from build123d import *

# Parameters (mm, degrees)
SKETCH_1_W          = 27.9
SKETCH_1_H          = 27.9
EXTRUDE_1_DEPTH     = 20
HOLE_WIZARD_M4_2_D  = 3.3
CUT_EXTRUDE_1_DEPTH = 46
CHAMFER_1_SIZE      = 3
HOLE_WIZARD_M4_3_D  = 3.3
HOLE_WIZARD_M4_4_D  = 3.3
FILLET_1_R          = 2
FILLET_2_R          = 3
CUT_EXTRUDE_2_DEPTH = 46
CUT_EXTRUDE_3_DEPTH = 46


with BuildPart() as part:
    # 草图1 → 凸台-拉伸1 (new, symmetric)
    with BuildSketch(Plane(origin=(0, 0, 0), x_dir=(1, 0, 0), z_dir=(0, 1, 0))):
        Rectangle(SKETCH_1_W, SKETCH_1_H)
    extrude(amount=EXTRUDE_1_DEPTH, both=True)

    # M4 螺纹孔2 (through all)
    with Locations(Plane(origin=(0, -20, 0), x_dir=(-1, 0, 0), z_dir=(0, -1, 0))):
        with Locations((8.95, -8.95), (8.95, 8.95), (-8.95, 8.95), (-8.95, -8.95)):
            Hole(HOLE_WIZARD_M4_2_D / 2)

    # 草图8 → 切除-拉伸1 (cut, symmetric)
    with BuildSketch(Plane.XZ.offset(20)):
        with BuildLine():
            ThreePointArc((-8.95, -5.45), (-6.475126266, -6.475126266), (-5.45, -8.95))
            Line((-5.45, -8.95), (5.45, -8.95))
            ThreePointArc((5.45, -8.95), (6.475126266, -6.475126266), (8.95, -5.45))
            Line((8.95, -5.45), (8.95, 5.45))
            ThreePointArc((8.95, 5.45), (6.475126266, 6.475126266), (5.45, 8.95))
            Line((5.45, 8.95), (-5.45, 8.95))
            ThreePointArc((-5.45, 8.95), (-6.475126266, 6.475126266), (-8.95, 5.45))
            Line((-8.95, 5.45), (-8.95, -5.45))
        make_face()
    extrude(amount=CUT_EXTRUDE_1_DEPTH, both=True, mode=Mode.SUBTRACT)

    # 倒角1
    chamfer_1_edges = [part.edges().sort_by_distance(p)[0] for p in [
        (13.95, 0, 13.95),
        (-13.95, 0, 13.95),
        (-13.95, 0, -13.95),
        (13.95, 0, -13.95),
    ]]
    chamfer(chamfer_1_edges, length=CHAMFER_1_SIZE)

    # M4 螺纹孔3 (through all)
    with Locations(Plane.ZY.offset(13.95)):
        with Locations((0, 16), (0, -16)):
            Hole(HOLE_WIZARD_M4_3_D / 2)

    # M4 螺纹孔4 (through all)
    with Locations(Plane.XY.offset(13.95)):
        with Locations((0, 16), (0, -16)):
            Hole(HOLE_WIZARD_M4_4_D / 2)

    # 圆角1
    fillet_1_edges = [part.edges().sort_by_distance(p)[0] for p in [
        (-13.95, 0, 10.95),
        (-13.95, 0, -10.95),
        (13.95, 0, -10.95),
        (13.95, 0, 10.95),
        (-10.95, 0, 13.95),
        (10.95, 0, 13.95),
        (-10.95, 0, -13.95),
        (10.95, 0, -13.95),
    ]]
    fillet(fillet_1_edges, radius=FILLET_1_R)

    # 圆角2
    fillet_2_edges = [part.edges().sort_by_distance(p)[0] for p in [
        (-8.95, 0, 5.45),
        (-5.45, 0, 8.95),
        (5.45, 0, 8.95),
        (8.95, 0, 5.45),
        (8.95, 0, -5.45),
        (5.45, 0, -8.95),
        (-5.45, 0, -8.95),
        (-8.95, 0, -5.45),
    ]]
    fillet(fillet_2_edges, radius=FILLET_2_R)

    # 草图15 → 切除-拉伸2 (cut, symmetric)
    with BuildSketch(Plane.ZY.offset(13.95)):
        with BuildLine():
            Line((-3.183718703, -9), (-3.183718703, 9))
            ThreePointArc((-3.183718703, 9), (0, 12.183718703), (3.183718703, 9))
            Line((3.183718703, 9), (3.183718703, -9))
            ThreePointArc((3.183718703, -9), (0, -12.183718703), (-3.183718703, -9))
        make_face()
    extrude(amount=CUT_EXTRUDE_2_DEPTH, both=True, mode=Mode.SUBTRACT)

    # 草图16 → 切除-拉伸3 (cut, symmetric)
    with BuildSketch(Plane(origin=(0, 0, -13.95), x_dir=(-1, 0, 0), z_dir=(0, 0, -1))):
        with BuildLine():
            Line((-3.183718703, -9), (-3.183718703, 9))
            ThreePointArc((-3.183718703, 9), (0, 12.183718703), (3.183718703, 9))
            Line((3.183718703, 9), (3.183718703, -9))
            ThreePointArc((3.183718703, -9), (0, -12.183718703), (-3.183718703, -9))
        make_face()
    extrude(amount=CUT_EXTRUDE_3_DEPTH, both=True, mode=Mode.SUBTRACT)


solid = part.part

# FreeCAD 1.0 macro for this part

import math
import FreeCAD as App
import Part
import Sketcher
from FreeCAD import Vector
Q = App.Units.Quantity


def edges_at(feature, points):
    """Names of the edges that pass closest to the given points."""
    edges = feature.Shape.Edges
    near = lambda p: min(range(len(edges)), key=lambda i: edges[i].distToShape(Part.Vertex(*p))[0])
    return sorted({f"Edge{near(p) + 1}" for p in points})

doc = App.newDocument("Part")
params = doc.addObject("Spreadsheet::Sheet", "Params")
for row, (alias, value) in enumerate([
    ("sketch1_width", "27.9 mm"),
    ("pad1_length", "40 mm"),
    ("sketch2_diameter", "3.3 mm"),
    ("hole_diameter", "3.3 mm"),
    ("sketch3_radius", "3.5 mm"),
    ("sketch3_width", "10.9 mm"),
    ("pocket1_length", "92 mm"),
    ("chamfer_size", "3 mm"),
    ("sketch4_diameter", "3.3 mm"),
    ("hole2_diameter", "3.3 mm"),
    ("sketch5_diameter", "3.3 mm"),
    ("hole3_diameter", "3.3 mm"),
    ("fillet_radius", "2 mm"),
    ("fillet2_radius", "3 mm"),
    ("sketch6_width", "18 mm"),
    ("pocket2_length", "92 mm"),
    ("sketch7_height", "18 mm"),
    ("pocket3_length", "92 mm"),
], start=1):
    params.set(f"A{row}", alias)
    params.set(f"B{row}", "=" + value)
    params.setAlias(f"B{row}", alias)

body = doc.addObject("PartDesign::Body", "Body")

# Sketch on XZ plane
sketch1 = doc.addObject("Sketcher::SketchObject", "Sketch")
body.addObject(sketch1)
sketch1.AttachmentSupport = (doc.XZ_Plane, [""])
sketch1.MapMode = "FlatFace"
sketch1.addGeometry([
    Part.LineSegment(Vector(-14, -14, 0), Vector(-14, 14, 0)),
    Part.LineSegment(Vector(-14, 14, 0), Vector(14, 14, 0)),
    Part.LineSegment(Vector(14, 14, 0), Vector(14, -14, 0)),
    Part.LineSegment(Vector(14, -14, 0), Vector(-14, -14, 0)),
], False)
sketch1.addConstraint([
    Sketcher.Constraint("Coincident", 0, 2, 1, 1),
    Sketcher.Constraint("Coincident", 1, 2, 2, 1),
    Sketcher.Constraint("Coincident", 2, 2, 3, 1),
    Sketcher.Constraint("Coincident", 3, 2, 0, 1),
    Sketcher.Constraint("Vertical", 0),
    Sketcher.Constraint("Horizontal", 1),
    Sketcher.Constraint("Vertical", 2),
    Sketcher.Constraint("Horizontal", 3),
    Sketcher.Constraint("Symmetric", 0, 2, 2, 2, -1, 1),
    Sketcher.Constraint("Equal", 3, 0),
    Sketcher.Constraint("DistanceX", 1, 1, 1, 2, Q("27.9 mm")),
])
sketch1.setExpression("Constraints[10]", "Params.sketch1_width")
pad1 = doc.addObject("PartDesign::Pad", "Pad")
body.addObject(pad1)
pad1.Profile = sketch1
pad1.setExpression("Length", "Params.pad1_length")
pad1.Midplane = True

# Sketch on XZ plane
sketch2 = doc.addObject("Sketcher::SketchObject", "Sketch001")
body.addObject(sketch2)
sketch2.AttachmentSupport = (doc.XZ_Plane, [""])
sketch2.MapMode = "FlatFace"
sketch2.AttachmentOffset = App.Placement(Vector(0, 0, 20), App.Rotation())
sketch2.addGeometry([
    Part.Circle(Vector(-8.9, 8.9, 0), Vector(0, 0, 1), 1.6),
    Part.Circle(Vector(-8.9, -8.9, 0), Vector(0, 0, 1), 1.6),
    Part.Circle(Vector(8.9, -8.9, 0), Vector(0, 0, 1), 1.6),
    Part.Circle(Vector(8.9, 8.9, 0), Vector(0, 0, 1), 1.6),
], False)
sketch2.addConstraint([
    Sketcher.Constraint("Equal", 0, 1),
    Sketcher.Constraint("Equal", 1, 2),
    Sketcher.Constraint("Equal", 2, 3),
    Sketcher.Constraint("Symmetric", 0, 3, 2, 3, -1, 1),
    Sketcher.Constraint("Symmetric", 1, 3, 3, 3, -1, 1),
    Sketcher.Constraint("Symmetric", 1, 3, 2, 3, -2),
    Sketcher.Constraint("Diameter", 0, Q("3.3 mm")),
    Sketcher.Constraint("DistanceY", 1, 3, 0, 3, Q("17.9 mm")),
    Sketcher.Constraint("DistanceX", 1, 3, 2, 3, Q("17.9 mm")),
])
sketch2.setExpression("Constraints[6]", "Params.sketch2_diameter")
doc.recompute()
hole = doc.addObject("PartDesign::Hole", "Hole")
body.addObject(hole)
hole.Profile = sketch2
hole.ThreadType = "None"
hole.setExpression("Diameter", "Params.hole_diameter")
hole.DepthType = "ThroughAll"

# Sketch on XZ plane
sketch3 = doc.addObject("Sketcher::SketchObject", "Sketch002")
body.addObject(sketch3)
sketch3.AttachmentSupport = (doc.XZ_Plane, [""])
sketch3.MapMode = "FlatFace"
sketch3.AttachmentOffset = App.Placement(Vector(0, 0, 20), App.Rotation())
sketch3.addGeometry([
    Part.ArcOfCircle(Part.Circle(Vector(-9, -9, 0), Vector(0, 0, 1), 3.5), math.radians(0), math.radians(90)),  # 0
    Part.LineSegment(Vector(-5.5, -8.9, 0), Vector(5.5, -8.9, 0)),  # 1
    Part.ArcOfCircle(Part.Circle(Vector(9, -9, 0), Vector(0, 0, 1), 3.5), math.radians(90), math.radians(180)),  # 2
    Part.LineSegment(Vector(8.9, -5.5, 0), Vector(8.9, 5.5, 0)),  # 3
    Part.ArcOfCircle(Part.Circle(Vector(9, 9, 0), Vector(0, 0, 1), 3.5), math.radians(-180), math.radians(-90)),  # 4
    Part.LineSegment(Vector(5.5, 8.9, 0), Vector(-5.5, 8.9, 0)),  # 5
    Part.ArcOfCircle(Part.Circle(Vector(-9, 9, 0), Vector(0, 0, 1), 3.5), math.radians(-90), math.radians(0)),  # 6
    Part.LineSegment(Vector(-8.9, 5.5, 0), Vector(-8.9, -5.5, 0)),  # 7
], False)
sketch3.addConstraint([
    Sketcher.Constraint("Coincident", 0, 1, 1, 1),
    Sketcher.Constraint("Coincident", 1, 2, 2, 2),
    Sketcher.Constraint("Coincident", 2, 1, 3, 1),
    Sketcher.Constraint("Coincident", 3, 2, 4, 2),
    Sketcher.Constraint("Coincident", 4, 1, 5, 1),
    Sketcher.Constraint("Coincident", 5, 2, 6, 2),
    Sketcher.Constraint("Coincident", 6, 1, 7, 1),
    Sketcher.Constraint("Coincident", 7, 2, 0, 2),
    Sketcher.Constraint("Horizontal", 1),
    Sketcher.Constraint("Vertical", 3),
    Sketcher.Constraint("Horizontal", 5),
    Sketcher.Constraint("Vertical", 7),
    Sketcher.Constraint("Equal", 0, 2),
    Sketcher.Constraint("Equal", 2, 4),
    Sketcher.Constraint("Equal", 4, 6),
    Sketcher.Constraint("Symmetric", 0, 3, 4, 3, -1, 1),
    Sketcher.Constraint("Symmetric", 2, 3, 6, 3, -1, 1),
    Sketcher.Constraint("Symmetric", 0, 3, 2, 3, -2),
    Sketcher.Constraint("Horizontal", 2, 3, 0, 1),
    Sketcher.Constraint("Horizontal", 6, 3, 4, 1),
    Sketcher.Constraint("Vertical", 4, 3, 2, 1),
    Sketcher.Constraint("Vertical", 0, 3, 6, 1),
    Sketcher.Constraint("Equal", 5, 3),
    Sketcher.Constraint("Radius", 0, Q("3.5 mm")),
    Sketcher.Constraint("DistanceX", 1, 1, 1, 2, Q("10.9 mm")),
])
sketch3.setExpression("Constraints[23]", "Params.sketch3_radius")
sketch3.setExpression("Constraints[24]", "Params.sketch3_width")
pocket1 = doc.addObject("PartDesign::Pocket", "Pocket")
body.addObject(pocket1)
pocket1.Profile = sketch3
pocket1.setExpression("Length", "Params.pocket1_length")
pocket1.Midplane = True
doc.recompute()

chamfer = doc.addObject("PartDesign::Chamfer", "Chamfer")
body.addObject(chamfer)
chamfer.Base = (pocket1, edges_at(pocket1, [
    (13.95, 0, 13.95),
    (-13.95, 0, 13.95),
    (-13.95, 0, -13.95),
    (13.95, 0, -13.95),
]))
chamfer.setExpression("Size", "Params.chamfer_size")

# Sketch on YZ plane
sketch4 = doc.addObject("Sketcher::SketchObject", "Sketch003")
body.addObject(sketch4)
sketch4.AttachmentSupport = (doc.YZ_Plane, [""])
sketch4.MapMode = "FlatFace"
sketch4.AttachmentOffset = App.Placement(Vector(0, 0, -13.95), App.Rotation())
sketch4.addGeometry([
    Part.Circle(Vector(16, 0, 0), Vector(0, 0, 1), 1.6),
    Part.Circle(Vector(-16, 0, 0), Vector(0, 0, 1), 1.6),
], False)
sketch4.addConstraint([
    Sketcher.Constraint("Equal", 0, 1),
    Sketcher.Constraint("Symmetric", 0, 3, 1, 3, -1, 1),
    Sketcher.Constraint("PointOnObject", 0, 3, -1),
    Sketcher.Constraint("Diameter", 0, Q("3.3 mm")),
    Sketcher.Constraint("DistanceX", -1, 1, 0, 3, Q("16 mm")),
])
sketch4.setExpression("Constraints[3]", "Params.sketch4_diameter")
doc.recompute()
hole2 = doc.addObject("PartDesign::Hole", "Hole001")
body.addObject(hole2)
hole2.Profile = sketch4
hole2.ThreadType = "None"
hole2.setExpression("Diameter", "Params.hole2_diameter")
hole2.DepthType = "ThroughAll"
hole2.Reversed = True

# Sketch on XY plane
sketch5 = doc.addObject("Sketcher::SketchObject", "Sketch004")
body.addObject(sketch5)
sketch5.AttachmentSupport = (doc.XY_Plane, [""])
sketch5.MapMode = "FlatFace"
sketch5.AttachmentOffset = App.Placement(Vector(0, 0, 13.95), App.Rotation())
sketch5.addGeometry([
    Part.Circle(Vector(0, 16, 0), Vector(0, 0, 1), 1.6),
    Part.Circle(Vector(0, -16, 0), Vector(0, 0, 1), 1.6),
], False)
sketch5.addConstraint([
    Sketcher.Constraint("Equal", 0, 1),
    Sketcher.Constraint("Symmetric", 0, 3, 1, 3, -1, 1),
    Sketcher.Constraint("PointOnObject", 0, 3, -2),
    Sketcher.Constraint("Diameter", 0, Q("3.3 mm")),
    Sketcher.Constraint("DistanceY", -1, 1, 0, 3, Q("16 mm")),
])
sketch5.setExpression("Constraints[3]", "Params.sketch5_diameter")
doc.recompute()
hole3 = doc.addObject("PartDesign::Hole", "Hole002")
body.addObject(hole3)
hole3.Profile = sketch5
hole3.ThreadType = "None"
hole3.setExpression("Diameter", "Params.hole3_diameter")
hole3.DepthType = "ThroughAll"
doc.recompute()

fillet = doc.addObject("PartDesign::Fillet", "Fillet")
body.addObject(fillet)
fillet.Base = (hole3, edges_at(hole3, [
    (-13.95, 0, 10.95),
    (-13.95, 0, -10.95),
    (13.95, 0, -10.95),
    (13.95, 0, 10.95),
    (-10.95, 0, 13.95),
    (10.95, 0, 13.95),
    (-10.95, 0, -13.95),
    (10.95, 0, -13.95),
]))
fillet.setExpression("Radius", "Params.fillet_radius")
doc.recompute()

fillet2 = doc.addObject("PartDesign::Fillet", "Fillet001")
body.addObject(fillet2)
fillet2.Base = (fillet, edges_at(fillet, [
    (-8.95, 0, 5.45),
    (-5.45, 0, 8.95),
    (5.45, 0, 8.95),
    (8.95, 0, 5.45),
    (8.95, 0, -5.45),
    (5.45, 0, -8.95),
    (-5.45, 0, -8.95),
    (-8.95, 0, -5.45),
]))
fillet2.setExpression("Radius", "Params.fillet2_radius")

# Sketch on YZ plane
sketch6 = doc.addObject("Sketcher::SketchObject", "Sketch005")
body.addObject(sketch6)
sketch6.AttachmentSupport = (doc.YZ_Plane, [""])
sketch6.MapMode = "FlatFace"
sketch6.AttachmentOffset = App.Placement(Vector(0, 0, -13.95), App.Rotation())
sketch6.addGeometry([
    Part.LineSegment(Vector(9, -3.2, 0), Vector(-9, -3.2, 0)),
    Part.ArcOfCircle(Part.Circle(Vector(-9, 0, 0), Vector(0, 0, 1), 3.2), math.radians(90), math.radians(270)),
    Part.LineSegment(Vector(-9, 3.2, 0), Vector(9, 3.2, 0)),
    Part.ArcOfCircle(Part.Circle(Vector(9, 0, 0), Vector(0, 0, 1), 3.2), math.radians(-90), math.radians(90)),
], False)
sketch6.addConstraint([
    Sketcher.Constraint("Tangent", 0, 2, 1, 2),
    Sketcher.Constraint("Tangent", 1, 1, 2, 1),
    Sketcher.Constraint("Tangent", 2, 2, 3, 2),
    Sketcher.Constraint("Tangent", 3, 1, 0, 1),
    Sketcher.Constraint("Horizontal", 0),
    Sketcher.Constraint("Horizontal", 2),
    Sketcher.Constraint("Symmetric", 1, 3, 3, 3, -1, 1),
    Sketcher.Constraint("DistanceX", 0, 2, 0, 1, Q("18 mm")),
    Sketcher.Constraint("Radius", 1, Q("3.183719 mm")),
])
sketch6.setExpression("Constraints[7]", "Params.sketch6_width")
pocket2 = doc.addObject("PartDesign::Pocket", "Pocket001")
body.addObject(pocket2)
pocket2.Profile = sketch6
pocket2.setExpression("Length", "Params.pocket2_length")
pocket2.Midplane = True

# Sketch on XY plane
sketch7 = doc.addObject("Sketcher::SketchObject", "Sketch006")
body.addObject(sketch7)
sketch7.AttachmentSupport = (doc.XY_Plane, [""])
sketch7.MapMode = "FlatFace"
sketch7.AttachmentOffset = App.Placement(Vector(0, 0, -13.95), App.Rotation())
sketch7.addGeometry([
    Part.LineSegment(Vector(3.2, 9, 0), Vector(3.2, -9, 0)),
    Part.ArcOfCircle(Part.Circle(Vector(0, -9, 0), Vector(0, 0, 1), 3.2), math.radians(180), math.radians(360)),
    Part.LineSegment(Vector(-3.2, -9, 0), Vector(-3.2, 9, 0)),
    Part.ArcOfCircle(Part.Circle(Vector(0, 9, 0), Vector(0, 0, 1), 3.2), math.radians(0), math.radians(180)),
], False)
sketch7.addConstraint([
    Sketcher.Constraint("Tangent", 0, 2, 1, 2),
    Sketcher.Constraint("Tangent", 1, 1, 2, 1),
    Sketcher.Constraint("Tangent", 2, 2, 3, 2),
    Sketcher.Constraint("Tangent", 3, 1, 0, 1),
    Sketcher.Constraint("Vertical", 0),
    Sketcher.Constraint("Vertical", 2),
    Sketcher.Constraint("Symmetric", 1, 3, 3, 3, -1, 1),
    Sketcher.Constraint("DistanceY", 0, 2, 0, 1, Q("18 mm")),
    Sketcher.Constraint("Radius", 1, Q("3.183719 mm")),
])
sketch7.setExpression("Constraints[7]", "Params.sketch7_height")
pocket3 = doc.addObject("PartDesign::Pocket", "Pocket002")
body.addObject(pocket3)
pocket3.Profile = sketch7
pocket3.setExpression("Length", "Params.pocket3_length")
pocket3.Midplane = True

doc.recompute()
